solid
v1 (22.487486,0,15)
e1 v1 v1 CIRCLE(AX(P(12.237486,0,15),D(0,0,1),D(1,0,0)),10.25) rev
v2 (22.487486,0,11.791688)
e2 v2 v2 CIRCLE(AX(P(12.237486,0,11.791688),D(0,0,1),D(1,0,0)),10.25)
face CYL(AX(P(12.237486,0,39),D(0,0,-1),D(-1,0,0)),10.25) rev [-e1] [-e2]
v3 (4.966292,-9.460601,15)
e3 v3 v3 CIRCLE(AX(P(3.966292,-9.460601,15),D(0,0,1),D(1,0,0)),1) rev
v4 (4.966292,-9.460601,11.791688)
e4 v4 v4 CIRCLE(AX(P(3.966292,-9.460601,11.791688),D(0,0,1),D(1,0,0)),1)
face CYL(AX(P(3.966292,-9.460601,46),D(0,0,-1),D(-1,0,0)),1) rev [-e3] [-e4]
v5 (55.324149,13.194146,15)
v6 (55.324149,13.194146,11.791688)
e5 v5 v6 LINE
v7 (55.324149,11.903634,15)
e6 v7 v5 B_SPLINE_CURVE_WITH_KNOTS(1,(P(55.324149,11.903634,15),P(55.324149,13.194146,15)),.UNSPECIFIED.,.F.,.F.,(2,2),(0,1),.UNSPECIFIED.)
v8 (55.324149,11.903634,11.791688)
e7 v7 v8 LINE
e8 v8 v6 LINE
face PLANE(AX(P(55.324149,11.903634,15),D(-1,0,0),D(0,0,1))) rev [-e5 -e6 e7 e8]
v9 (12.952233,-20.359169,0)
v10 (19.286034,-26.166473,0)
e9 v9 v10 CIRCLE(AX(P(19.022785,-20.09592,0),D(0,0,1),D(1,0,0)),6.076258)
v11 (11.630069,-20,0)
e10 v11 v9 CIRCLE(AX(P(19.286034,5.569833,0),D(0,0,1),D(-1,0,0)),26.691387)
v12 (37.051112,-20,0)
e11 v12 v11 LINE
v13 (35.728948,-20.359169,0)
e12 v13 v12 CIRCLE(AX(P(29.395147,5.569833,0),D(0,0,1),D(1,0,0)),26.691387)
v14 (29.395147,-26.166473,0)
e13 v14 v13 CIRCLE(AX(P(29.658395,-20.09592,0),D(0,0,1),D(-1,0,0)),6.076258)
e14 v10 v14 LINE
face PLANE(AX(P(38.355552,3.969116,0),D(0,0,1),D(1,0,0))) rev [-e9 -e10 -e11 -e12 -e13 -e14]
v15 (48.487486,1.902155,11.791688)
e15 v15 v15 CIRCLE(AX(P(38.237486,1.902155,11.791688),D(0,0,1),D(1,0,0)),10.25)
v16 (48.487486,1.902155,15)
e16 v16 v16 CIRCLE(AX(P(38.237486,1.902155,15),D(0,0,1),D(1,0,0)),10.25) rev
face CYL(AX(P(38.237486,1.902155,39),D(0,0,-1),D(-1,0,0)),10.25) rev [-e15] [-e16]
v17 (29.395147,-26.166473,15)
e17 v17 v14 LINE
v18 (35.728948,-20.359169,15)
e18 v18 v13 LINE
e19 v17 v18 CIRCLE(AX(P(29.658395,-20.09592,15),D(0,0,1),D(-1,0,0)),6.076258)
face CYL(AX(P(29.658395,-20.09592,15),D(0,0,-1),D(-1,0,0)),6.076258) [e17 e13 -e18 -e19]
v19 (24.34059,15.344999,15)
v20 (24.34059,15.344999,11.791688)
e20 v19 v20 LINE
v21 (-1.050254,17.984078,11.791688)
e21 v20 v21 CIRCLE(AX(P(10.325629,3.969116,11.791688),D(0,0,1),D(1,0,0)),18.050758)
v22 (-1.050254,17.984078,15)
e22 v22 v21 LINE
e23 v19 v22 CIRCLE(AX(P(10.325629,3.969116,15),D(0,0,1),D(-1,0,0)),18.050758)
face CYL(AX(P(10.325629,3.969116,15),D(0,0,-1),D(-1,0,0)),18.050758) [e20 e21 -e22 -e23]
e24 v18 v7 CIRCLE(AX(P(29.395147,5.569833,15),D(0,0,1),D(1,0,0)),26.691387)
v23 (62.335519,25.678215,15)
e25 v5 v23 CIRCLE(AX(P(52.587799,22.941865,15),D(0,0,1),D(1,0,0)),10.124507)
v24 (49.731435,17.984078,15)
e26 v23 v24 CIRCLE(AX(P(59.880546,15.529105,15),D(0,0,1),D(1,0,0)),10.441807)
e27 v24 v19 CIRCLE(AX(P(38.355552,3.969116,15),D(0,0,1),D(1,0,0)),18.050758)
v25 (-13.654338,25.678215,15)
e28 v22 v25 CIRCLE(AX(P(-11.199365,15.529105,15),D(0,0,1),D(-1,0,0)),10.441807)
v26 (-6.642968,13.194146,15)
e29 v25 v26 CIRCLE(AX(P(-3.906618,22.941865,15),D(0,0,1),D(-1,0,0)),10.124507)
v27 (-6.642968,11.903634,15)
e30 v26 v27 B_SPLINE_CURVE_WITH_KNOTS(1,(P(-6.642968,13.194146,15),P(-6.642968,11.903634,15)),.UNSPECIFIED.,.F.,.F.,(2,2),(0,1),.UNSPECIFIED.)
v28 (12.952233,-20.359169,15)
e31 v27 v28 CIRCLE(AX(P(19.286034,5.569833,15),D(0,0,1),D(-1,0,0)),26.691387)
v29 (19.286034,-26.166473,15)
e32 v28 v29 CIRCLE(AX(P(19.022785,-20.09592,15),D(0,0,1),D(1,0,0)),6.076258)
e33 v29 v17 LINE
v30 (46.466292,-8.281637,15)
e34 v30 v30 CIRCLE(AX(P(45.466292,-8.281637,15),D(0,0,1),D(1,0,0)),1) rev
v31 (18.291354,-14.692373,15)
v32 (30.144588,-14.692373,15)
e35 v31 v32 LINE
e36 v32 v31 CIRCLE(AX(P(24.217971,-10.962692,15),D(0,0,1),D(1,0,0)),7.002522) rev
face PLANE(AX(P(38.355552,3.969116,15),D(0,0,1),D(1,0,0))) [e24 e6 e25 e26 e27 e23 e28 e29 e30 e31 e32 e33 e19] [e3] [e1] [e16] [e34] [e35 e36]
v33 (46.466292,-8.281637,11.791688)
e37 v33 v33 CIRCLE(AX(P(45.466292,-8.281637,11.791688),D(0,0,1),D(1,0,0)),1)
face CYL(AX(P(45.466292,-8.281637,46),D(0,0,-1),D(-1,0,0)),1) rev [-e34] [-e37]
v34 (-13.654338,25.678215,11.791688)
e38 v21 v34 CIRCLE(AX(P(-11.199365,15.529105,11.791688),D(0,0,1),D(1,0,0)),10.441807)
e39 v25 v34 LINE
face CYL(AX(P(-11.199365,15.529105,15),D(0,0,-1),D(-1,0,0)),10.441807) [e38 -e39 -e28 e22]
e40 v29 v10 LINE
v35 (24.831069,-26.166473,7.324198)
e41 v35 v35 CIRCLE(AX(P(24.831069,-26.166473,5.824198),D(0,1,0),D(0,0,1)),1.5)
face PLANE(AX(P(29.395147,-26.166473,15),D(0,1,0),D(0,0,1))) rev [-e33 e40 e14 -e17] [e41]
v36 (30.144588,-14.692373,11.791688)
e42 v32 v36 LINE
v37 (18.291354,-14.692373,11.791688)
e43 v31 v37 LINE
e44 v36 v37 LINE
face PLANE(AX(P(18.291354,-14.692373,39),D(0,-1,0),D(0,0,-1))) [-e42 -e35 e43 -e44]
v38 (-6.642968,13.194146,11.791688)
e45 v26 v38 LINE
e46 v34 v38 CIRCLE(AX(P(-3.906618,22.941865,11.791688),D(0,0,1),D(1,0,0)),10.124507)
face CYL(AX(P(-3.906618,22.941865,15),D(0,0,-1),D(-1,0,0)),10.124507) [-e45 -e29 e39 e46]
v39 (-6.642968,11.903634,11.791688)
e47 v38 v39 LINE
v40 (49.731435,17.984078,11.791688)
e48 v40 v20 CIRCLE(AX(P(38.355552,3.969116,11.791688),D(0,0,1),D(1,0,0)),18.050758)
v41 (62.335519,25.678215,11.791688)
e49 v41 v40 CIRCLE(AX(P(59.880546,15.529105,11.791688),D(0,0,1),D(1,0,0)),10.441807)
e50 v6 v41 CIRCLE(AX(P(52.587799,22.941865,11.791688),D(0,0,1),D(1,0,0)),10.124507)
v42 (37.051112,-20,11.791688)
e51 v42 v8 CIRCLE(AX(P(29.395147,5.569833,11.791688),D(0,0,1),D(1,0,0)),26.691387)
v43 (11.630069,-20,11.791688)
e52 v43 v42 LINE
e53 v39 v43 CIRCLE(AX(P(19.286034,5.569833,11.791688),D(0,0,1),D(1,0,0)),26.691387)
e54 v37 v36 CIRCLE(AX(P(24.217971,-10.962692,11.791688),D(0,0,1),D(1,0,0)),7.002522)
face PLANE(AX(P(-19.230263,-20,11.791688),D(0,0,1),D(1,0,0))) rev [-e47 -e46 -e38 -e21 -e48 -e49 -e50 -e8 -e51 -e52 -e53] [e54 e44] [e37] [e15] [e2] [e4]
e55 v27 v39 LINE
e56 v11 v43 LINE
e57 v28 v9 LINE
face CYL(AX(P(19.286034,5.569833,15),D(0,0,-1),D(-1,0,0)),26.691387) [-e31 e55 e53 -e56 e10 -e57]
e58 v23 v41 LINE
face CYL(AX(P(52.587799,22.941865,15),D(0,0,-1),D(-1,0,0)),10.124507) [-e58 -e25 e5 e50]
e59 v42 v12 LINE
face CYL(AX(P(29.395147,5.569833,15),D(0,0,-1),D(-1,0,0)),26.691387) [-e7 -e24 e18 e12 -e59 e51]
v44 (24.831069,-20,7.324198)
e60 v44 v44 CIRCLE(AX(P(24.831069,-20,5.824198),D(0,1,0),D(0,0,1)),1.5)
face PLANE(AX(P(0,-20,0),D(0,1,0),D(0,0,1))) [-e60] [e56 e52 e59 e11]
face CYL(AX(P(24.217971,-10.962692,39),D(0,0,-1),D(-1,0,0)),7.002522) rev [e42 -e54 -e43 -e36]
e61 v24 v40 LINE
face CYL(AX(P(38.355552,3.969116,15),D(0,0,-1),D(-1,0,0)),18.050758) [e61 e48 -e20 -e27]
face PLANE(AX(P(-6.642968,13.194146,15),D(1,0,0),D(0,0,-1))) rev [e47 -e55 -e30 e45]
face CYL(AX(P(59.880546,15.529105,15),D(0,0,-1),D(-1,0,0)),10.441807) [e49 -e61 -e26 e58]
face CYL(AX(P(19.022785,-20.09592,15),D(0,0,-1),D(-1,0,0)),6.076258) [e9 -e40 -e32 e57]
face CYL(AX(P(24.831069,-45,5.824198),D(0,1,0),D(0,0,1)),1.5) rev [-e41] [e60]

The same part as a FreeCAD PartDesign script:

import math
import FreeCAD as App
import Part
import Sketcher

doc = App.newDocument("Part")
body = doc.addObject("PartDesign::Body", "Body")

# Sketch on XY plane
sketch1 = doc.addObject("Sketcher::SketchObject", "Sketch")
body.addObject(sketch1)
sketch1.AttachmentSupport = (doc.XY_Plane, [""])
sketch1.MapMode = "FlatFace"
sketch1.addGeometry(Part.LineSegment(App.Vector(19.3, -26.2, 0), App.Vector(29.4, -26.2, 0)), False)
sketch1.addGeometry(Part.ArcOfCircle(Part.Circle(App.Vector(29.7, -20.1, 0), App.Vector(0, 0, 1), 6.1), math.radians(-92), math.radians(-2)), False)
sketch1.addGeometry(Part.ArcOfCircle(Part.Circle(App.Vector(29.4, 5.6, 0), App.Vector(0, 0, 1), 26.7), math.radians(-76), math.radians(14)), False)
sketch1.addGeometry(Part.LineSegment(App.Vector(55.3, 11.9, 0), App.Vector(55.3, 13.2, 0)), False)
sketch1.addGeometry(Part.ArcOfCircle(Part.Circle(App.Vector(52.6, 22.9, 0), App.Vector(0, 0, 1), 10.1), math.radians(-74), math.radians(16)), False)
sketch1.addGeometry(Part.ArcOfCircle(Part.Circle(App.Vector(59.9, 15.5, 0), App.Vector(0, 0, 1), 10.4), math.radians(76), math.radians(166)), False)
sketch1.addGeometry(Part.ArcOfCircle(Part.Circle(App.Vector(38.4, 4, 0), App.Vector(0, 0, 1), 18.1), math.radians(51), math.radians(141)), False)
sketch1.addGeometry(Part.ArcOfCircle(Part.Circle(App.Vector(10.3, 4, 0), App.Vector(0, 0, 1), 18.1), math.radians(39), math.radians(129)), False)
sketch1.addGeometry(Part.ArcOfCircle(Part.Circle(App.Vector(-11.2, 15.5, 0), App.Vector(0, 0, 1), 10.4), math.radians(14), math.radians(104)), False)
sketch1.addGeometry(Part.ArcOfCircle(Part.Circle(App.Vector(-3.9, 22.9, 0), App.Vector(0, 0, 1), 10.1), math.radians(164), math.radians(254)), False)
sketch1.addGeometry(Part.LineSegment(App.Vector(-6.6, 13.2, 0), App.Vector(-6.6, 11.9, 0)), False)
sketch1.addGeometry(Part.ArcOfCircle(Part.Circle(App.Vector(19.3, 5.6, 0), App.Vector(0, 0, 1), 26.7), math.radians(166), math.radians(256)), False)
sketch1.addGeometry(Part.ArcOfCircle(Part.Circle(App.Vector(19, -20.1, 0), App.Vector(0, 0, 1), 6.1), math.radians(-178), math.radians(-88)), False)
sketch1.addConstraint(Sketcher.Constraint("Coincident", 0, 2, 1, 1))
sketch1.addConstraint(Sketcher.Constraint("Coincident", 1, 2, 2, 1))
sketch1.addConstraint(Sketcher.Constraint("Coincident", 2, 2, 3, 1))
sketch1.addConstraint(Sketcher.Constraint("Coincident", 3, 2, 4, 1))
sketch1.addConstraint(Sketcher.Constraint("Coincident", 4, 2, 5, 1))
sketch1.addConstraint(Sketcher.Constraint("Coincident", 5, 2, 6, 1))
sketch1.addConstraint(Sketcher.Constraint("Coincident", 6, 2, 7, 1))
sketch1.addConstraint(Sketcher.Constraint("Coincident", 7, 2, 8, 1))
sketch1.addConstraint(Sketcher.Constraint("Coincident", 8, 2, 9, 1))
sketch1.addConstraint(Sketcher.Constraint("Coincident", 9, 2, 10, 1))
sketch1.addConstraint(Sketcher.Constraint("Coincident", 10, 2, 11, 1))
sketch1.addConstraint(Sketcher.Constraint("Coincident", 11, 2, 12, 1))
sketch1.addConstraint(Sketcher.Constraint("Coincident", 12, 2, 0, 1))
sketch1.addConstraint(Sketcher.Constraint("Horizontal", 0))
sketch1.addConstraint(Sketcher.Constraint("Vertical", 3))
sketch1.addConstraint(Sketcher.Constraint("Vertical", 10))
sketch1.addConstraint(Sketcher.Constraint("Equal", 6, 7))
sketch1.addConstraint(Sketcher.Constraint("Equal", 5, 8))
sketch1.addConstraint(Sketcher.Constraint("Equal", 4, 9))
sketch1.addConstraint(Sketcher.Constraint("Equal", 2, 11))
sketch1.addConstraint(Sketcher.Constraint("Equal", 1, 12))
sketch1.addConstraint(Sketcher.Constraint("Horizontal", 6, 3, 7, 3))
sketch1.addConstraint(Sketcher.Constraint("Horizontal", 5, 3, 8, 3))
sketch1.addConstraint(Sketcher.Constraint("Horizontal", 4, 3, 9, 3))
sketch1.addConstraint(Sketcher.Constraint("Horizontal", 2, 3, 11, 3))
sketch1.addConstraint(Sketcher.Constraint("Horizontal", 1, 3, 12, 3))
sketch1.addConstraint(Sketcher.Constraint("Horizontal", 5, 2, 7, 2))
sketch1.addConstraint(Sketcher.Constraint("Horizontal", 4, 2, 8, 2))
sketch1.addConstraint(Sketcher.Constraint("Horizontal", 3, 2, 9, 2))
sketch1.addConstraint(Sketcher.Constraint("Horizontal", 2, 2, 10, 2))
sketch1.addConstraint(Sketcher.Constraint("Horizontal", 1, 2, 11, 2))
sketch1.addConstraint(Sketcher.Constraint("Vertical", 2, 3, 0, 2))
sketch1.addConstraint(Sketcher.Constraint("Radius", 6, 18.050758))
sketch1.addConstraint(Sketcher.Constraint("DistanceY", -1, 1, 6, 2, 15.344999))
sketch1.addConstraint(Sketcher.Constraint("Radius", 1, 6.076258))
sketch1.addConstraint(Sketcher.Constraint("Radius", 2, 26.691387))
sketch1.addConstraint(Sketcher.Constraint("Radius", 4, 10.124507))
sketch1.addConstraint(Sketcher.Constraint("Radius", 5, 10.441807))
sketch1.addConstraint(Sketcher.Constraint("DistanceY", 1, 2, 2, 3, 25.929002))
sketch1.addConstraint(Sketcher.Constraint("DistanceX", 2, 3, 2, 2, 25.929002))
sketch1.addConstraint(Sketcher.Constraint("DistanceX", -1, 1, 4, 3, 52.587799))
sketch1.addConstraint(Sketcher.Constraint("DistanceX", 2, 3, 5, 3, 30.485398))
sketch1.addConstraint(Sketcher.Constraint("DistanceY", 6, 3, 4, 2, 21.709099))
sketch1.addConstraint(Sketcher.Constraint("DistanceX", 0, 1, 0, 2, 10.109114))
sketch1.addConstraint(Sketcher.Constraint("DistanceY", 3, 1, 3, 2, 1.290512))
sketch1.addConstraint(Sketcher.Constraint("DistanceY", 1, 3, -1, 1, 20.09592))
sketch1.addConstraint(Sketcher.Constraint("DistanceX", -1, 1, 7, 3, 10.325629))
sketch1.addConstraint(Sketcher.Constraint("DistanceX", 9, 3, -1, 1, 3.906618))
sketch1.addConstraint(Sketcher.Constraint("DistanceY", 1, 2, -1, 1, 20.359169))
pad1 = doc.addObject("PartDesign::Pad", "Pad")
body.addObject(pad1)
pad1.Profile = sketch1
pad1.Length = 15

# Sketch on XY plane
sketch2 = doc.addObject("Sketcher::SketchObject", "Sketch001")
body.addObject(sketch2)
sketch2.AttachmentSupport = (doc.XY_Plane, [""])
sketch2.MapMode = "FlatFace"
sketch2.addGeometry(Part.Circle(App.Vector(12, 0, 0), App.Vector(0, 0, 1), 10), False)
sketch2.addGeometry(Part.Circle(App.Vector(38, 2, 0), App.Vector(0, 0, 1), 10), False)
sketch2.addGeometry(Part.LineSegment(App.Vector(30, -15, 0), App.Vector(18, -15, 0)), False)
sketch2.addGeometry(Part.ArcOfCircle(Part.Circle(App.Vector(24, -11, 0), App.Vector(0, 0, 1), 7), math.radians(-148), math.radians(-32)), False)
sketch2.addConstraint(Sketcher.Constraint("Coincident", 2, 1, 3, 2))
sketch2.addConstraint(Sketcher.Constraint("Coincident", 3, 1, 2, 2))
sketch2.addConstraint(Sketcher.Constraint("Horizontal", 2))
sketch2.addConstraint(Sketcher.Constraint("Equal", 0, 1))
sketch2.addConstraint(Sketcher.Constraint("PointOnObject", 0, 3, -1))
sketch2.addConstraint(Sketcher.Constraint("Diameter", 0, 20.5))
sketch2.addConstraint(Sketcher.Constraint("DistanceX", 0, 3, 1, 3, 26.0))
sketch2.addConstraint(Sketcher.Constraint("Radius", 3, 7.002522))
sketch2.addConstraint(Sketcher.Constraint("DistanceX", 2, 2, 2, 1, 11.853234))
sketch2.addConstraint(Sketcher.Constraint("DistanceX", -1, 1, 3, 3, 24.217971))
sketch2.addConstraint(Sketcher.Constraint("DistanceY", 3, 3, -1, 1, 10.962692))
sketch2.addConstraint(Sketcher.Constraint("DistanceX", 0, 3, 3, 1, 6.053868))
sketch2.addConstraint(Sketcher.Constraint("DistanceY", -1, 1, 1, 3, 1.902155))
pocket1 = doc.addObject("PartDesign::Pocket", "Pocket")
body.addObject(pocket1)
pocket1.Profile = sketch2
pocket1.Length = 39
pocket1.Reversed = True

# Sketch on XY plane
sketch3 = doc.addObject("Sketcher::SketchObject", "Sketch002")
body.addObject(sketch3)
sketch3.AttachmentSupport = (doc.XY_Plane, [""])
sketch3.MapMode = "FlatFace"
sketch3.addGeometry(Part.Circle(App.Vector(4, -9.5, 0), App.Vector(0, 0, 1), 1), False)
sketch3.addGeometry(Part.Circle(App.Vector(45.5, -8.3, 0), App.Vector(0, 0, 1), 1), False)
sketch3.addConstraint(Sketcher.Constraint("Equal", 0, 1))
sketch3.addConstraint(Sketcher.Constraint("Diameter", 0, 2.0))
sketch3.addConstraint(Sketcher.Constraint("DistanceX", 0, 3, 1, 3, 41.5))
sketch3.addConstraint(Sketcher.Constraint("DistanceY", 0, 3, -1, 1, 9.460601))
sketch3.addConstraint(Sketcher.Constraint("DistanceX", -1, 1, 0, 3, 3.966292))
sketch3.addConstraint(Sketcher.Constraint("DistanceY", 1, 3, -1, 1, 8.281637))
pocket2 = doc.addObject("PartDesign::Pocket", "Pocket001")
body.addObject(pocket2)
pocket2.Profile = sketch3
pocket2.Length = 46
pocket2.Reversed = True

# Sketch on XZ plane
sketch4 = doc.addObject("Sketcher::SketchObject", "Sketch003")
body.addObject(sketch4)
sketch4.AttachmentSupport = (doc.XZ_Plane, [""])
sketch4.MapMode = "FlatFace"
sketch4.addGeometry(Part.LineSegment(App.Vector(-19, 0, 0), App.Vector(-19, 12, 0)), False)
sketch4.addGeometry(Part.LineSegment(App.Vector(-19, 12, 0), App.Vector(68, 12, 0)), False)
sketch4.addGeometry(Part.LineSegment(App.Vector(68, 12, 0), App.Vector(68, 0, 0)), False)
sketch4.addGeometry(Part.LineSegment(App.Vector(68, 0, 0), App.Vector(-19, 0, 0)), False)
sketch4.addConstraint(Sketcher.Constraint("Coincident", 0, 2, 1, 1))
sketch4.addConstraint(Sketcher.Constraint("Coincident", 1, 2, 2, 1))
sketch4.addConstraint(Sketcher.Constraint("Coincident", 2, 2, 3, 1))
sketch4.addConstraint(Sketcher.Constraint("Coincident", 3, 2, 0, 1))
sketch4.addConstraint(Sketcher.Constraint("Vertical", 0))
sketch4.addConstraint(Sketcher.Constraint("Horizontal", 1))
sketch4.addConstraint(Sketcher.Constraint("Vertical", 2))
sketch4.addConstraint(Sketcher.Constraint("Horizontal", 3))
sketch4.addConstraint(Sketcher.Constraint("PointOnObject", 2, 2, -1))
sketch4.addConstraint(Sketcher.Constraint("DistanceX", 1, 1, 1, 2, 87.3052))
sketch4.addConstraint(Sketcher.Constraint("DistanceY", 0, 1, 0, 2, 11.791688))
sketch4.addConstraint(Sketcher.Constraint("DistanceX", 0, 2, -1, 1, 19.230263))
pocket3 = doc.addObject("PartDesign::Pocket", "Pocket002")
body.addObject(pocket3)
pocket3.Profile = sketch4
pocket3.Type = "TwoLengths"
pocket3.Length = 30
pocket3.Length2 = 20

# Sketch on XZ plane
sketch5 = doc.addObject("Sketcher::SketchObject", "Sketch004")
body.addObject(sketch5)
sketch5.AttachmentSupport = (doc.XZ_Plane, [""])
sketch5.MapMode = "FlatFace"
sketch5.addGeometry(Part.Circle(App.Vector(24.8, 5.8, 0), App.Vector(0, 0, 1), 1.5), False)
sketch5.addConstraint(Sketcher.Constraint("Diameter", 0, 3.0))
sketch5.addConstraint(Sketcher.Constraint("DistanceX", -1, 1, 0, 3, 24.831069))
sketch5.addConstraint(Sketcher.Constraint("DistanceY", -1, 1, 0, 3, 5.824198))
pocket4 = doc.addObject("PartDesign::Pocket", "Pocket003")
body.addObject(pocket4)
pocket4.Profile = sketch5
pocket4.Length = 45
pocket4.Reversed = True

doc.recompute()
